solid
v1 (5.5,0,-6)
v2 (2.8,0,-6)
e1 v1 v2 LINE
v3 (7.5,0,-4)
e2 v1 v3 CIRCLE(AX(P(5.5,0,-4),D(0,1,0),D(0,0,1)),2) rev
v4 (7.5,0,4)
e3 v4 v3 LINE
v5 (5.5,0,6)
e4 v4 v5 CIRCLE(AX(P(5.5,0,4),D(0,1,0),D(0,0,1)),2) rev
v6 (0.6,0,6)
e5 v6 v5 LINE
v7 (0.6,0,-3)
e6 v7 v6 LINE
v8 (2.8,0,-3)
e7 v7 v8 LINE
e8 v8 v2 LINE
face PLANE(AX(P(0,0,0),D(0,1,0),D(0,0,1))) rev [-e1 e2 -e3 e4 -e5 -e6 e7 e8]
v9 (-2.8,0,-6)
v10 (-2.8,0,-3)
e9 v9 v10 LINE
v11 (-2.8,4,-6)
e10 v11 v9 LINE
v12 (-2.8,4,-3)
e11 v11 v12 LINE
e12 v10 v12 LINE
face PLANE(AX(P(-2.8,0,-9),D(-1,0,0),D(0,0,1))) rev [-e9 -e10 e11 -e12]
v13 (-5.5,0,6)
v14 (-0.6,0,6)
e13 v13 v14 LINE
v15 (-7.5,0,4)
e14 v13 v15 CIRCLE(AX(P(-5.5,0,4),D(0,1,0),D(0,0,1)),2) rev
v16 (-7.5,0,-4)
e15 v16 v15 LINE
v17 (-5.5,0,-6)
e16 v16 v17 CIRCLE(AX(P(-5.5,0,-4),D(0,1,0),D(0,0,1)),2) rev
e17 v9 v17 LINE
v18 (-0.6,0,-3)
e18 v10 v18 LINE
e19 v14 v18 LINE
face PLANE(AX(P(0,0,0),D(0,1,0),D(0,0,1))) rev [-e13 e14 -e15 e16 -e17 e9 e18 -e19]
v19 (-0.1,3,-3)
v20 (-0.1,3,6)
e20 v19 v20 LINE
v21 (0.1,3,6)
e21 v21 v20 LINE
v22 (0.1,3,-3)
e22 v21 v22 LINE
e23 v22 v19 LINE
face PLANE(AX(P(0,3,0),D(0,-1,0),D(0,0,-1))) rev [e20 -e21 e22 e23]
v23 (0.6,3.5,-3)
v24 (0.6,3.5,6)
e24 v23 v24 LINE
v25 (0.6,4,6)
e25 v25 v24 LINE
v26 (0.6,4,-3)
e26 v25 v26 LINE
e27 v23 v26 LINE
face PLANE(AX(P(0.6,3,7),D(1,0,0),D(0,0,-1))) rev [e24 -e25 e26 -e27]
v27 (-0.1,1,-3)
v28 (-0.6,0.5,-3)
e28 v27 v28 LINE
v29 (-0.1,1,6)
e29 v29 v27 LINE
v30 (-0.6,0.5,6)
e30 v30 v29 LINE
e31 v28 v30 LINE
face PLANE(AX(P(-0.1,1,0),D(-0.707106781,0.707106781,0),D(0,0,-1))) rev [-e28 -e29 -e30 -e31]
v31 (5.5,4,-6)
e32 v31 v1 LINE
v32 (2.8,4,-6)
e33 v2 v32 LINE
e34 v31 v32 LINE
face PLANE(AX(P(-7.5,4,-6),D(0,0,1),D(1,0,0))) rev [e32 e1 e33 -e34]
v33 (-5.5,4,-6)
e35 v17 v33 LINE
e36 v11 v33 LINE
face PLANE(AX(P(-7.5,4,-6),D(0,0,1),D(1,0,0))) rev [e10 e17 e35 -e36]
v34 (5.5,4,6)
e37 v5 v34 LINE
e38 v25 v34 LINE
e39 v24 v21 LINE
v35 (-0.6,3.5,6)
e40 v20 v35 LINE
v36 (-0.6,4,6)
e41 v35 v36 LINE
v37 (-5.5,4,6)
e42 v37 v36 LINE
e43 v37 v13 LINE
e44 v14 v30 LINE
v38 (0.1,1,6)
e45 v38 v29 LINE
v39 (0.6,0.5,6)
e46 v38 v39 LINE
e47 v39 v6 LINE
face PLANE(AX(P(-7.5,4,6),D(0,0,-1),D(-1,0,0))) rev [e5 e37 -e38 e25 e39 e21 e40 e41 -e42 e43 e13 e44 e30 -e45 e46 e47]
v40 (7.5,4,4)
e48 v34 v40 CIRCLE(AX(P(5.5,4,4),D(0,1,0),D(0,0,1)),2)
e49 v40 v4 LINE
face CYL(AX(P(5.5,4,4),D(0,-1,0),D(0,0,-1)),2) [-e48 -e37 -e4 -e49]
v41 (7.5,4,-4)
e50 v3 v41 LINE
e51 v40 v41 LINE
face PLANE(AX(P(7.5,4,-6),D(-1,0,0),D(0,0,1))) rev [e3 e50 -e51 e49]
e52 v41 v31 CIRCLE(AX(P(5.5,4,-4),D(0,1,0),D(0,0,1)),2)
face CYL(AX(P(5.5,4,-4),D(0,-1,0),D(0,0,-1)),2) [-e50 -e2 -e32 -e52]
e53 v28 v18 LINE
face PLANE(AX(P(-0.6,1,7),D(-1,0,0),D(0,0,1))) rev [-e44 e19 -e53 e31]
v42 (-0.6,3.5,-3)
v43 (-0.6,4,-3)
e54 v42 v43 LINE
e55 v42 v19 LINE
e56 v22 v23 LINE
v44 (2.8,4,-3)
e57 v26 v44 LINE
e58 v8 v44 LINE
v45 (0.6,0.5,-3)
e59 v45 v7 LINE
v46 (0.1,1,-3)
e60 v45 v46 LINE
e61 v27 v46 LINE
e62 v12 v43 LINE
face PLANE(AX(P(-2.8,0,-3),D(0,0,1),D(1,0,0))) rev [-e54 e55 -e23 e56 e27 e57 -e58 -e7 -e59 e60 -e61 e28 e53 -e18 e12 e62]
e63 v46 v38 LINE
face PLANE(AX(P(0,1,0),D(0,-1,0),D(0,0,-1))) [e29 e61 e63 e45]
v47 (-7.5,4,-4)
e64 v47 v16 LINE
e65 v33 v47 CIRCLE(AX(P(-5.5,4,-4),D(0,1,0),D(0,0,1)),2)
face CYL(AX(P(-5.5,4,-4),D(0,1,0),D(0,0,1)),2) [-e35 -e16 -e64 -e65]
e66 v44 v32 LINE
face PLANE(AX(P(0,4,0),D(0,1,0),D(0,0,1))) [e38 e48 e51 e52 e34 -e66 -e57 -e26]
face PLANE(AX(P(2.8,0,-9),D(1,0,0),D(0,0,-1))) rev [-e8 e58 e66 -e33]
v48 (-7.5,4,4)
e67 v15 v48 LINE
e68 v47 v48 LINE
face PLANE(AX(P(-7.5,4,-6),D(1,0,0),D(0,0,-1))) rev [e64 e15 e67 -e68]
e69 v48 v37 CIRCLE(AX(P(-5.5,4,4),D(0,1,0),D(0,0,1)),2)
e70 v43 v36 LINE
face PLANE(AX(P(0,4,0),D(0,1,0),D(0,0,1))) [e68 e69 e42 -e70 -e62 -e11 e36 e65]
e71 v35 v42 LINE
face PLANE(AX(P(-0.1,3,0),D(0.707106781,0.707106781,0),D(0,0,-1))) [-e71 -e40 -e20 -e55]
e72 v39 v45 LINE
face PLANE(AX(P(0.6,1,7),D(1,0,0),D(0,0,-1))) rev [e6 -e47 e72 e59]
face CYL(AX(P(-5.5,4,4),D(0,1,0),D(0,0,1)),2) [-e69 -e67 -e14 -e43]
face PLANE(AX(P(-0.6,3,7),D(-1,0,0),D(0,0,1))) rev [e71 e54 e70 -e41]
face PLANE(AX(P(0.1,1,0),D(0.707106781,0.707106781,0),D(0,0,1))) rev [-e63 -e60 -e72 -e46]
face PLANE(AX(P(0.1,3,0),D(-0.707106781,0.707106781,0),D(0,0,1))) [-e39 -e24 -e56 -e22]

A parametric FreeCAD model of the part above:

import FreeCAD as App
import Part
import Sketcher
from FreeCAD import Vector


def edges_at(feature, points):
    """Names of the edges that pass closest to the given points."""
    edges = feature.Shape.Edges
    near = lambda p: min(range(len(edges)), key=lambda i: edges[i].distToShape(Part.Vertex(*p))[0])
    return sorted({f"Edge{near(p) + 1}" for p in points})

doc = App.newDocument("Part")
body = doc.addObject("PartDesign::Body", "Body")

sketch1 = body.newObject("Sketcher::SketchObject", "Sketch")
sketch1.AttachmentSupport = (doc.getObject("XZ_Plane"), [""])
sketch1.MapMode = "FlatFace"
sketch1.addGeometry([
    Part.LineSegment(Vector(-8, -6, 0), Vector(-8, 6, 0)),
    Part.LineSegment(Vector(-8, 6, 0), Vector(8, 6, 0)),
    Part.LineSegment(Vector(8, 6, 0), Vector(8, -6, 0)),
    Part.LineSegment(Vector(8, -6, 0), Vector(-8, -6, 0)),
], False)
sketch1.addConstraint([
    Sketcher.Constraint("Coincident", 0, 2, 1, 1),
    Sketcher.Constraint("Coincident", 1, 2, 2, 1),
    Sketcher.Constraint("Coincident", 2, 2, 3, 1),
    Sketcher.Constraint("Coincident", 3, 2, 0, 1),
    Sketcher.Constraint("Vertical", 0),
    Sketcher.Constraint("Horizontal", 1),
    Sketcher.Constraint("Vertical", 2),
    Sketcher.Constraint("Horizontal", 3),
    Sketcher.Constraint("Symmetric", 0, 2, 2, 2, -1, 1),
    Sketcher.Constraint("DistanceX", 1, 1, 1, 2, 15.0),
    Sketcher.Constraint("DistanceY", 0, 1, 0, 2, 12.0),
])
pad1 = body.newObject("PartDesign::Pad", "Pad")
pad1.Profile = sketch1
pad1.Length = 4
pad1.Reversed = True

sketch2 = body.newObject("Sketcher::SketchObject", "Sketch001")
sketch2.AttachmentSupport = (doc.getObject("XZ_Plane"), [""])
sketch2.MapMode = "FlatFace"
sketch2.AttachmentOffset = App.Placement(Vector(0, 0, -4), App.Rotation())
sketch2.addGeometry([
    Part.LineSegment(Vector(-3, -9, 0), Vector(-3, -3, 0)),
    Part.LineSegment(Vector(-3, -3, 0), Vector(3, -3, 0)),
    Part.LineSegment(Vector(3, -3, 0), Vector(3, -9, 0)),
    Part.LineSegment(Vector(3, -9, 0), Vector(-3, -9, 0)),
], False)
sketch2.addConstraint([
    Sketcher.Constraint("Coincident", 0, 2, 1, 1),
    Sketcher.Constraint("Coincident", 1, 2, 2, 1),
    Sketcher.Constraint("Coincident", 2, 2, 3, 1),
    Sketcher.Constraint("Coincident", 3, 2, 0, 1),
    Sketcher.Constraint("Vertical", 0),
    Sketcher.Constraint("Horizontal", 1),
    Sketcher.Constraint("Vertical", 2),
    Sketcher.Constraint("Horizontal", 3),
    Sketcher.Constraint("DistanceY", 0, 1, 0, 2, 6.0),
    Sketcher.Constraint("DistanceX", 1, 1, 1, 2, 5.6),
    Sketcher.Constraint("DistanceY", 0, 2, -1, 1, 3.0),
    Sketcher.Constraint("DistanceX", 0, 2, -1, 1, 2.8),
])
pocket1 = body.newObject("PartDesign::Pocket", "Pocket")
pocket1.Profile = sketch2
pocket1.Type = "ThroughAll"
pocket1.Reversed = True

sketch3 = body.newObject("Sketcher::SketchObject", "Sketch002")
sketch3.AttachmentSupport = (doc.getObject("XZ_Plane"), [""])
sketch3.MapMode = "FlatFace"
sketch3.AttachmentOffset = App.Placement(Vector(0, 0, -4), App.Rotation())
sketch3.addGeometry([
    Part.LineSegment(Vector(-0.6, -3, 0), Vector(-0.6, 7, 0)),
    Part.LineSegment(Vector(-0.6, 7, 0), Vector(0.6, 7, 0)),
    Part.LineSegment(Vector(0.6, 7, 0), Vector(0.6, -3, 0)),
    Part.LineSegment(Vector(0.6, -3, 0), Vector(-0.6, -3, 0)),
], False)
sketch3.addConstraint([
    Sketcher.Constraint("Coincident", 0, 2, 1, 1),
    Sketcher.Constraint("Coincident", 1, 2, 2, 1),
    Sketcher.Constraint("Coincident", 2, 2, 3, 1),
    Sketcher.Constraint("Coincident", 3, 2, 0, 1),
    Sketcher.Constraint("Vertical", 0),
    Sketcher.Constraint("Horizontal", 1),
    Sketcher.Constraint("Vertical", 2),
    Sketcher.Constraint("Horizontal", 3),
    Sketcher.Constraint("DistanceY", 0, 1, 0, 2, 10.0),
    Sketcher.Constraint("DistanceX", 1, 1, 1, 2, 1.2),
    Sketcher.Constraint("DistanceY", -1, 1, 0, 2, 7.0),
    Sketcher.Constraint("DistanceX", 0, 2, -1, 1, 0.6),
])
pocket2 = body.newObject("PartDesign::Pocket", "Pocket001")
pocket2.Profile = sketch3
pocket2.Length = 1
pocket2.Reversed = True
doc.recompute()

chamfer = body.newObject("PartDesign::Chamfer", "Chamfer")
chamfer.Base = (pocket2, edges_at(pocket2, [(0.6, 3, 1.5), (-0.6, 3, 1.5)]))
chamfer.Size = 0.5
doc.recompute()

fillet = body.newObject("PartDesign::Fillet", "Fillet")
fillet.Base = (chamfer, edges_at(chamfer, [(7.5, 2, 6)]))
fillet.Radius = 2
doc.recompute()

fillet2 = body.newObject("PartDesign::Fillet", "Fillet001")
fillet2.Base = (fillet, edges_at(fillet, [(7.5, 2, -6)]))
fillet2.Radius = 2
doc.recompute()

fillet3 = body.newObject("PartDesign::Fillet", "Fillet002")
fillet3.Base = (fillet2, edges_at(fillet2, [(-7.5, 2, 6)]))
fillet3.Radius = 2
doc.recompute()

fillet4 = body.newObject("PartDesign::Fillet", "Fillet003")
fillet4.Base = (fillet3, edges_at(fillet3, [(-7.5, 2, -6)]))
fillet4.Radius = 2

sketch4 = body.newObject("Sketcher::SketchObject", "Sketch003")
sketch4.AttachmentSupport = (doc.getObject("XZ_Plane"), [""])
sketch4.MapMode = "FlatFace"
sketch4.addGeometry([
    Part.LineSegment(Vector(-0.6, 7, 0), Vector(-0.6, -3, 0)),
    Part.LineSegment(Vector(-0.6, -3, 0), Vector(0.6, -3, 0)),
    Part.LineSegment(Vector(0.6, -3, 0), Vector(0.6, 7, 0)),
    Part.LineSegment(Vector(0.6, 7, 0), Vector(-0.6, 7, 0)),
], False)
sketch4.addConstraint([
    Sketcher.Constraint("Coincident", 0, 2, 1, 1),
    Sketcher.Constraint("Coincident", 1, 2, 2, 1),
    Sketcher.Constraint("Coincident", 2, 2, 3, 1),
    Sketcher.Constraint("Coincident", 3, 2, 0, 1),
    Sketcher.Constraint("Vertical", 0),
    Sketcher.Constraint("Horizontal", 1),
    Sketcher.Constraint("Vertical", 2),
    Sketcher.Constraint("Horizontal", 3),
    Sketcher.Constraint("DistanceY", 0, 2, 0, 1, 10.0),
    Sketcher.Constraint("DistanceX", 1, 1, 1, 2, 1.2),
    Sketcher.Constraint("DistanceY", 0, 2, -1, 1, 3.0),
    Sketcher.Constraint("DistanceX", 0, 2, -1, 1, 0.6),
])
pocket3 = body.newObject("PartDesign::Pocket", "Pocket002")
pocket3.Profile = sketch4
pocket3.Length = 1
doc.recompute()

chamfer2 = body.newObject("PartDesign::Chamfer", "Chamfer001")
chamfer2.Base = (pocket3, edges_at(pocket3, [(0.6, 1, 1.5), (-0.6, 1, 1.5)]))
chamfer2.Size = 0.5

doc.recompute()
